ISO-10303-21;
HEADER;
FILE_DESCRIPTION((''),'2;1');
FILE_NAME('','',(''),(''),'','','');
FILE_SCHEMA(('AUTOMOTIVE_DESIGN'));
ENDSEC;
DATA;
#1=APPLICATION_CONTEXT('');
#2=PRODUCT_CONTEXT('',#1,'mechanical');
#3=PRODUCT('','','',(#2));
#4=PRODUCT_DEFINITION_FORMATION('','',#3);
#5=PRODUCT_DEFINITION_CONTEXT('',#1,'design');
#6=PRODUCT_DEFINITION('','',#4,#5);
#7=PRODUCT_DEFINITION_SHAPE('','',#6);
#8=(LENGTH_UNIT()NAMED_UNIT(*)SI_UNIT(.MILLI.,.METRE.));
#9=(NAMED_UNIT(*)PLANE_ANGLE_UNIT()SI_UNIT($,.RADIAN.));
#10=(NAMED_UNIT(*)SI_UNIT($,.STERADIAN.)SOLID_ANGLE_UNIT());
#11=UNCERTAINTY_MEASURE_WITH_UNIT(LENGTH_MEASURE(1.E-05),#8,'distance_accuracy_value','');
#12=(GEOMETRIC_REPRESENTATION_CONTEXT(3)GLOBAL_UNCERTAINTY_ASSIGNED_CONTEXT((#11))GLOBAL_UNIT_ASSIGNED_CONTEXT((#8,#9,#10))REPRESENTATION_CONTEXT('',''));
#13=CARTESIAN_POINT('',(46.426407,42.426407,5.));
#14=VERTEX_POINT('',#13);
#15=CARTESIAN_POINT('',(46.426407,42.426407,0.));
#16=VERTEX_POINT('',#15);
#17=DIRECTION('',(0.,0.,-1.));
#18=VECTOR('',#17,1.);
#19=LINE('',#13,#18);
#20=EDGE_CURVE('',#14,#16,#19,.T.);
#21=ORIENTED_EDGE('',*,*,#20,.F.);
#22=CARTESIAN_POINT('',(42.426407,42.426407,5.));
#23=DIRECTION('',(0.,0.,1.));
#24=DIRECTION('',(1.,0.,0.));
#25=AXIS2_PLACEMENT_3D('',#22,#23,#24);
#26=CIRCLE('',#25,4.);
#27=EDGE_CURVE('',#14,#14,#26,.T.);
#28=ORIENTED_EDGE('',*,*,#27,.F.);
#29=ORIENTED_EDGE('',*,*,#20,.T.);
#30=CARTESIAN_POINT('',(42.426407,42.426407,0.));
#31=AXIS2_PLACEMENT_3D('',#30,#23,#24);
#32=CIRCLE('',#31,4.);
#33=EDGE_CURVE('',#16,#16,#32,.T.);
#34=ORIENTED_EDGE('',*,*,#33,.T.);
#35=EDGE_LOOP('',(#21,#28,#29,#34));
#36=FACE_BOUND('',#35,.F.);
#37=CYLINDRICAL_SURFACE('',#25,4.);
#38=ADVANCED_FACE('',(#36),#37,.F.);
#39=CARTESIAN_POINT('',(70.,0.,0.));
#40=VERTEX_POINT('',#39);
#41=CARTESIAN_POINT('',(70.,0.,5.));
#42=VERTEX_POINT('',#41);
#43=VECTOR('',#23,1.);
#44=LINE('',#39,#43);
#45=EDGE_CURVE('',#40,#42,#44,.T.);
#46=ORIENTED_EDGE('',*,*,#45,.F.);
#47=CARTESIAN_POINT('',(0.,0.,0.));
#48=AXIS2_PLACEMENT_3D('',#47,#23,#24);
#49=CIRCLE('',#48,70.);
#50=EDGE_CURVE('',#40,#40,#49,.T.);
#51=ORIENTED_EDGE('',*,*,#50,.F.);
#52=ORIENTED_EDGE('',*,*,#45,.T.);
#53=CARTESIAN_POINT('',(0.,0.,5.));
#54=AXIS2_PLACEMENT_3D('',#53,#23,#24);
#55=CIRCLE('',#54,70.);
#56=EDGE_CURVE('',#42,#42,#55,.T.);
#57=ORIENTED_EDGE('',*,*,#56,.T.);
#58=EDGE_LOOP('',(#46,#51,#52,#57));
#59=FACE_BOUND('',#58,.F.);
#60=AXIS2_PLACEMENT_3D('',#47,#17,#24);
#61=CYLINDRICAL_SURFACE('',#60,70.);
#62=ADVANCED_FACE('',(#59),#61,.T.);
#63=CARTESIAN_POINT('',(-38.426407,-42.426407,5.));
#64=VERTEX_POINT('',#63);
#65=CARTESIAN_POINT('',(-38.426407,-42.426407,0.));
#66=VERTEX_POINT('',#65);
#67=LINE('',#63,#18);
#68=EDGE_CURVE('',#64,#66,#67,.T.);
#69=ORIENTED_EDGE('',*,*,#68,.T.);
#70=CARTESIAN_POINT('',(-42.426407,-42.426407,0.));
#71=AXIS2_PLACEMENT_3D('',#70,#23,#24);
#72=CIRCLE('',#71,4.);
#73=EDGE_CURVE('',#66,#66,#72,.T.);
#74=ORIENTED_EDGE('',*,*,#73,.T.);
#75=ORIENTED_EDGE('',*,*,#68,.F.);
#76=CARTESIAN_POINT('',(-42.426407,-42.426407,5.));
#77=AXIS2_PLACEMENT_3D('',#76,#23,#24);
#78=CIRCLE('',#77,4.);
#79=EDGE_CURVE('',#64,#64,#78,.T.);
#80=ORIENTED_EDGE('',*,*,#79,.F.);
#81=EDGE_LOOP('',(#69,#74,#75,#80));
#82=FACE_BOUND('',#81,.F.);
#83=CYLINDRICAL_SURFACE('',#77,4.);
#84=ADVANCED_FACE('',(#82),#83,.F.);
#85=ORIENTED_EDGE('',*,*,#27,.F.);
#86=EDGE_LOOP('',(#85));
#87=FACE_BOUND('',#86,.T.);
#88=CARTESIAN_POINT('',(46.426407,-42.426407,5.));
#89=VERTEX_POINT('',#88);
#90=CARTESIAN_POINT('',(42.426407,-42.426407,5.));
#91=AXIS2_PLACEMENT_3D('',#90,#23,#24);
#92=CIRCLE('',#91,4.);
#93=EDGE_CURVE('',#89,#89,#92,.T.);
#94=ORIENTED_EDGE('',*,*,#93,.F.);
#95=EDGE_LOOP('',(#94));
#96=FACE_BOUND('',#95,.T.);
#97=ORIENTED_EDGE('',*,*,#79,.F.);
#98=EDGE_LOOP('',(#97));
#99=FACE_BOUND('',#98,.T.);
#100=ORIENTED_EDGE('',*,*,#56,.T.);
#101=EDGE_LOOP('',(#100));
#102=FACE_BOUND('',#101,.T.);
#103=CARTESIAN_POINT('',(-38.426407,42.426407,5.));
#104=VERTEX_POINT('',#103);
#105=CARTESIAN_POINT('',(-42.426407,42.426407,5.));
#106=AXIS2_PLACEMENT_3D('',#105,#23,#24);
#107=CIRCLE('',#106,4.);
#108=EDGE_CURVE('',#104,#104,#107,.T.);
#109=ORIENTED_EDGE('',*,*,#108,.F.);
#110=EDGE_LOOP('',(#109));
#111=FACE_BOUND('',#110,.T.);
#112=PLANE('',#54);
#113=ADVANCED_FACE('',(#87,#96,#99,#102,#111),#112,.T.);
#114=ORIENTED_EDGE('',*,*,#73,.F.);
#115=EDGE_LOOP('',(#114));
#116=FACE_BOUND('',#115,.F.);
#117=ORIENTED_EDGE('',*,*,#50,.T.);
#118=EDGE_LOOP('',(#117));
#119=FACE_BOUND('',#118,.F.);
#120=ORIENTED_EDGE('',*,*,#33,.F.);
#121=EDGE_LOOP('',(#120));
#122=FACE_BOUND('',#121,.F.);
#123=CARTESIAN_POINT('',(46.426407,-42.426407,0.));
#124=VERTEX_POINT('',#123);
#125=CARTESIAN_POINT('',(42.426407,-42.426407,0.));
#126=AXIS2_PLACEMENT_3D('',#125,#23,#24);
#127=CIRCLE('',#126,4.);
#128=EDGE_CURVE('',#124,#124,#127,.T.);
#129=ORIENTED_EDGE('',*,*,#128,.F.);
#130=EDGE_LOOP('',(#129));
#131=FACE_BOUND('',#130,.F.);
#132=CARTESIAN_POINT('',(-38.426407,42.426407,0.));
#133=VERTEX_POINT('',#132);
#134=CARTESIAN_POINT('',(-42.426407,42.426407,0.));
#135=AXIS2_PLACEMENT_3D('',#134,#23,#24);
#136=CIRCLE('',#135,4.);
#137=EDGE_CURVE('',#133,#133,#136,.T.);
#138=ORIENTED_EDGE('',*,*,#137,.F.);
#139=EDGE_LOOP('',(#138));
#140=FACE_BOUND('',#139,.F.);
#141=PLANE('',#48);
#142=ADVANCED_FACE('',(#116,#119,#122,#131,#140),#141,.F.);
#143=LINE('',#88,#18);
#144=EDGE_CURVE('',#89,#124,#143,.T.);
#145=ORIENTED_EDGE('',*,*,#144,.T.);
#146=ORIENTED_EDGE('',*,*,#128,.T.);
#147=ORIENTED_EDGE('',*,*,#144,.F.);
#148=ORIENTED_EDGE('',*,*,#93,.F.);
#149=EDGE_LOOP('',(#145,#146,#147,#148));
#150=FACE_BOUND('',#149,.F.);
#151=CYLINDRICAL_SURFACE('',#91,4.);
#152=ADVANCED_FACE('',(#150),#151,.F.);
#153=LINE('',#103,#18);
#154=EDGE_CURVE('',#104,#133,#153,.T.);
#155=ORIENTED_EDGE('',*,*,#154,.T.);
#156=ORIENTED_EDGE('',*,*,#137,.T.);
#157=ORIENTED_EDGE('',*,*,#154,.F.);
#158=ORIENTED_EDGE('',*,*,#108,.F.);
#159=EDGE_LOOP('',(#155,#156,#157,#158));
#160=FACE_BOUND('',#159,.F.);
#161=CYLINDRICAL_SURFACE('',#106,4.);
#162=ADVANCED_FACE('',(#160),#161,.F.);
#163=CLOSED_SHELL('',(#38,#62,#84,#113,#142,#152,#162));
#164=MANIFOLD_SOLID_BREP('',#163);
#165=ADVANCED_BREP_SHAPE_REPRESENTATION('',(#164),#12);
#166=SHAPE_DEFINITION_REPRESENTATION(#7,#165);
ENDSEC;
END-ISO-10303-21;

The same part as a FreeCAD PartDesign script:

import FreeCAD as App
import Part
import Sketcher

doc = App.newDocument("Part")
body = doc.addObject("PartDesign::Body", "Body")

sketch1 = body.newObject("Sketcher::SketchObject", "Sketch")
sketch1.AttachmentSupport = (doc.getObject("XY_Plane"), [""])
sketch1.MapMode = "FlatFace"
sketch1.addGeometry(Part.Circle(App.Vector(0, 0, 0), App.Vector(0, 0, 1), 70), False)
sketch1.addConstraint(Sketcher.Constraint("Coincident", 0, 3, -1, 1))
sketch1.addConstraint(Sketcher.Constraint("Diameter", 0, 140.0))
pad1 = body.newObject("PartDesign::Pad", "Pad")
pad1.Profile = sketch1
pad1.Length = 5

sketch2 = body.newObject("Sketcher::SketchObject", "Sketch001")
sketch2.AttachmentSupport = (doc.getObject("XY_Plane"), [""])
sketch2.MapMode = "FlatFace"
sketch2.AttachmentOffset = App.Placement(App.Vector(0, 0, 5), App.Rotation())
sketch2.addGeometry(Part.Circle(App.Vector(-42.4, 42.4, 0), App.Vector(0, 0, 1), 4), False)
sketch2.addGeometry(Part.Circle(App.Vector(42.4, 42.4, 0), App.Vector(0, 0, 1), 4), False)
sketch2.addGeometry(Part.Circle(App.Vector(42.4, -42.4, 0), App.Vector(0, 0, 1), 4), False)
sketch2.addGeometry(Part.Circle(App.Vector(-42.4, -42.4, 0), App.Vector(0, 0, 1), 4), False)
sketch2.addConstraint(Sketcher.Constraint("Equal", 0, 1))
sketch2.addConstraint(Sketcher.Constraint("Equal", 1, 2))
sketch2.addConstraint(Sketcher.Constraint("Equal", 2, 3))
sketch2.addConstraint(Sketcher.Constraint("Symmetric", 0, 3, 2, 3, -1, 1))
sketch2.addConstraint(Sketcher.Constraint("Symmetric", 1, 3, 3, 3, -1, 1))
sketch2.addConstraint(Sketcher.Constraint("Symmetric", 0, 3, 1, 3, -2))
sketch2.addConstraint(Sketcher.Constraint("Diameter", 0, 8.0))
sketch2.addConstraint(Sketcher.Constraint("DistanceX", 0, 3, -1, 1, 42.426407))
sketch2.addConstraint(Sketcher.Constraint("DistanceY", -1, 1, 0, 3, 42.426407))
pocket1 = body.newObject("PartDesign::Pocket", "Pocket")
pocket1.Profile = sketch2
pocket1.Length = 5

doc.recompute()
